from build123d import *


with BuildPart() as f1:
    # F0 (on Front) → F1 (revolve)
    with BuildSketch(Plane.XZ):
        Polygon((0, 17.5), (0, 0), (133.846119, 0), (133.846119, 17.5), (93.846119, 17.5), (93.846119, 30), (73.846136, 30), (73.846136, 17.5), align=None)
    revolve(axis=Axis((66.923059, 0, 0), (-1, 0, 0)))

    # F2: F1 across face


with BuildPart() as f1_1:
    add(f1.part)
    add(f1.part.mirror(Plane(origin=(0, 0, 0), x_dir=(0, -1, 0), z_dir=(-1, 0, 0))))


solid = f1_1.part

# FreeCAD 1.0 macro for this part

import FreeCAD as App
import Part
import Sketcher
from FreeCAD import Vector


def add_polygon(sketch, points):
    """Adds a closed chain of lines whose ends are joined by coincident constraints."""
    first, n = sketch.GeometryCount, len(points)
    for a, b in zip(points, points[1:] + points[:1]):
        sketch.addGeometry(Part.LineSegment(App.Vector(*a, 0), App.Vector(*b, 0)), False)
    for i in range(n):
        sketch.addConstraint(Sketcher.Constraint("Coincident", first + i, 2, first + (i + 1) % n, 1))

doc = App.newDocument("Part")
params = doc.addObject("Spreadsheet::Sheet", "Params")
for row, (alias, value) in enumerate([
    ("sketch1_width", "40 mm"),
    ("sketch1_height", "17.5 mm"),
    ("sketch1_height2", "12.5 mm"),
    ("revolution_angle", "360 deg"),
], start=1):
    params.set(f"A{row}", alias)
    params.set(f"B{row}", "=" + value)
    params.setAlias(f"B{row}", alias)

body = doc.addObject("PartDesign::Body", "Body")

sketch1 = body.newObject("Sketcher::SketchObject", "Sketch")
sketch1.AttachmentSupport = (doc.getObject("XZ_Plane"), [""])
sketch1.MapMode = "FlatFace"
add_polygon(sketch1, [(0, 17.5), (0, 0), (133.846119, 0), (133.846119, 17.5), (93.846119, 17.5), (93.846119, 30), (73.846136, 30), (73.846136, 17.5)])
sketch1.addConstraint([
    Sketcher.Constraint("Vertical", 0),
    Sketcher.Constraint("Horizontal", 1),
    Sketcher.Constraint("Vertical", 2),
    Sketcher.Constraint("Horizontal", 3),
    Sketcher.Constraint("Vertical", 4),
    Sketcher.Constraint("Horizontal", 5),
    Sketcher.Constraint("Vertical", 6),
    Sketcher.Constraint("Horizontal", 7),
    Sketcher.Constraint("Coincident", 0, 2, -1, 1),
    Sketcher.Constraint("Horizontal", 3, 2, 6, 2),
    Sketcher.Constraint("DistanceX", 3, 2, 3, 1, 40.0),
    Sketcher.Constraint("DistanceY", 0, 2, 0, 1, 17.5),
    Sketcher.Constraint("DistanceY", 4, 1, 4, 2, 12.5),
    Sketcher.Constraint("DistanceX", 1, 1, 1, 2, 133.846119),
    Sketcher.Constraint("DistanceX", 5, 2, 5, 1, 19.999983),
])
sketch1.setExpression("Constraints[18]", "Params.sketch1_width")
sketch1.setExpression("Constraints[19]", "Params.sketch1_height")
sketch1.setExpression("Constraints[20]", "Params.sketch1_height2")
revolution = body.newObject("PartDesign::Revolution", "Revolution")
revolution.Profile = sketch1
revolution.ReferenceAxis = (sketch1, ["H_Axis"])
revolution.setExpression("Angle", "Params.revolution_angle")
body2 = doc.addObject("PartDesign::Body", "Body001")
doc.recompute()

body2.BaseFeature = body
doc.recompute()

mirroring = doc.addObject("Part::Mirroring", "Mirroring")
mirroring.Source = body
mirroring.Base = Vector(0, 0, 0)
mirroring.Normal = Vector(-1, 0, 0)
body3 = doc.addObject("PartDesign::Body", "Body002")
body3.BaseFeature = mirroring
boolean = body2.newObject("PartDesign::Boolean", "Boolean")
boolean.Type = "Fuse"
boolean.addObjects([body3])
doc.recompute()
mirroring.Visibility = False

doc.recompute()
